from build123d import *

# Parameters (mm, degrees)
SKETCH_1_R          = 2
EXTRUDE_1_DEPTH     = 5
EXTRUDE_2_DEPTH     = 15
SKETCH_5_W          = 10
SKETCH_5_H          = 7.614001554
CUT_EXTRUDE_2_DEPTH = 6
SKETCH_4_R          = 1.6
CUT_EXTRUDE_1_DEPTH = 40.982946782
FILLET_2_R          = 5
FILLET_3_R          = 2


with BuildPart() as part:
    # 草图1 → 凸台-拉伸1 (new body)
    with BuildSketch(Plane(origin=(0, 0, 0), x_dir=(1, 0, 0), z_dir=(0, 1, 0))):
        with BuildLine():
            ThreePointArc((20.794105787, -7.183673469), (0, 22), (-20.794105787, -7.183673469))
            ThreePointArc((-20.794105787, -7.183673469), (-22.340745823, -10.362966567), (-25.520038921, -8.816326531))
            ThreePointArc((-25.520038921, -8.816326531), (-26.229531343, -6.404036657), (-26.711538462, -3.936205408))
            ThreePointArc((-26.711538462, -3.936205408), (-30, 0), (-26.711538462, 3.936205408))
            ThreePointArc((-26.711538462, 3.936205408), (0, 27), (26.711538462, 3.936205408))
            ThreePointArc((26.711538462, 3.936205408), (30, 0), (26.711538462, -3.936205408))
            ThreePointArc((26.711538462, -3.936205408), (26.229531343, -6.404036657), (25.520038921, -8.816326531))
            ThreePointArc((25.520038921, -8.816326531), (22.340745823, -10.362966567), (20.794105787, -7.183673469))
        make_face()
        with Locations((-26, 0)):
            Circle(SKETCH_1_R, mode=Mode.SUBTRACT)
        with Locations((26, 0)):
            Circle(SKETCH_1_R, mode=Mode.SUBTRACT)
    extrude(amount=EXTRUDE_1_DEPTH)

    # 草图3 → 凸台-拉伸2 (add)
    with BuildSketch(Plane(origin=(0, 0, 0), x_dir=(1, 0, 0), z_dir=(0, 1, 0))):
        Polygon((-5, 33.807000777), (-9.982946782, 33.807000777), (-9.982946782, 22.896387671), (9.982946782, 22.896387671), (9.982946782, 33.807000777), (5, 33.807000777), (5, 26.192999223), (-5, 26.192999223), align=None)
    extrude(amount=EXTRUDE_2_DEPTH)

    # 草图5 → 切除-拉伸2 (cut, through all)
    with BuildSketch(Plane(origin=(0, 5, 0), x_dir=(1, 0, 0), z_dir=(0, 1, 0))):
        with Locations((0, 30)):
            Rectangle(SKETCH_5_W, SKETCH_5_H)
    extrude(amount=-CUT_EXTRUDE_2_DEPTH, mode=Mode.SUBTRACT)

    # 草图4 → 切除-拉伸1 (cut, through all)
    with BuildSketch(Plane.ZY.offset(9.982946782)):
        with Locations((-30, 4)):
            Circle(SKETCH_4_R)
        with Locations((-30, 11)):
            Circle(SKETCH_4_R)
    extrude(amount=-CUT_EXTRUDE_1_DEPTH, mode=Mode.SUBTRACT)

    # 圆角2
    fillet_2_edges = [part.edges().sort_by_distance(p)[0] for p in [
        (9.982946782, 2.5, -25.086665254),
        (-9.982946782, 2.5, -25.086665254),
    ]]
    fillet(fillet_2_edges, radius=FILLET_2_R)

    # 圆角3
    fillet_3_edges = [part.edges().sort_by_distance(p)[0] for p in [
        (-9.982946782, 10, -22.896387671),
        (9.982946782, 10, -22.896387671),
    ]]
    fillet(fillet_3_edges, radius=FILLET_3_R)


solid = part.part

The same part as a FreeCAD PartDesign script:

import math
import FreeCAD as App
import Part
import Sketcher
Q = App.Units.Quantity


def edges_at(feature, points):
    """Names of the edges that pass closest to the given points."""
    edges = feature.Shape.Edges
    near = lambda p: min(range(len(edges)), key=lambda i: edges[i].distToShape(Part.Vertex(*p))[0])
    return sorted({f"Edge{near(p) + 1}" for p in points})


def add_polygon(sketch, points):
    """Adds a closed chain of lines whose ends are joined by coincident constraints."""
    first, n = sketch.GeometryCount, len(points)
    for a, b in zip(points, points[1:] + points[:1]):
        sketch.addGeometry(Part.LineSegment(App.Vector(*a, 0), App.Vector(*b, 0)), False)
    for i in range(n):
        sketch.addConstraint(Sketcher.Constraint("Coincident", first + i, 2, first + (i + 1) % n, 1))

doc = App.newDocument("Part")
body = doc.addObject("PartDesign::Body", "Body")

sketch1 = body.newObject("Sketcher::SketchObject", "Sketch")
sketch1.AttachmentSupport = (doc.getObject("XZ_Plane"), [""])
sketch1.MapMode = "FlatFace"
sketch1.addGeometry(Part.ArcOfCircle(Part.Circle(App.Vector(0, 0, 0), App.Vector(0, 0, 1), 22), math.radians(161), math.radians(379)), False)
sketch1.addGeometry(Part.ArcOfCircle(Part.Circle(App.Vector(23.2, 8, 0), App.Vector(0, 0, 1), 2.5), math.radians(19), math.radians(199)), False)
sketch1.addGeometry(Part.ArcOfCircle(Part.Circle(App.Vector(0, 0, 0), App.Vector(0, 0, 1), 27), math.radians(8.38), math.radians(19.06)), False)
sketch1.addGeometry(Part.ArcOfCircle(Part.Circle(App.Vector(26, 0, 0), App.Vector(0, 0, 1), 4), math.radians(-80), math.radians(80)), False)
sketch1.addGeometry(Part.ArcOfCircle(Part.Circle(App.Vector(0, 0, 0), App.Vector(0, 0, 1), 27), math.radians(-172), math.radians(-8)), False)
sketch1.addGeometry(Part.ArcOfCircle(Part.Circle(App.Vector(-26, 0, 0), App.Vector(0, 0, 1), 4), math.radians(100), math.radians(260)), False)
sketch1.addGeometry(Part.ArcOfCircle(Part.Circle(App.Vector(0, 0, 0), App.Vector(0, 0, 1), 27), math.radians(160.94), math.radians(171.62)), False)
sketch1.addGeometry(Part.ArcOfCircle(Part.Circle(App.Vector(-23.2, 8, 0), App.Vector(0, 0, 1), 2.5), math.radians(-19), math.radians(161)), False)
sketch1.addGeometry(Part.Circle(App.Vector(26, 0, 0), App.Vector(0, 0, 1), 2), False)
sketch1.addGeometry(Part.Circle(App.Vector(-26, 0, 0), App.Vector(0, 0, 1), 2), False)
sketch1.addConstraint(Sketcher.Constraint("Tangent", 0, 2, 1, 2))
sketch1.addConstraint(Sketcher.Constraint("Tangent", 1, 1, 2, 2))
sketch1.addConstraint(Sketcher.Constraint("Coincident", 2, 1, 3, 2))
sketch1.addConstraint(Sketcher.Constraint("Coincident", 3, 1, 4, 2))
sketch1.addConstraint(Sketcher.Constraint("Coincident", 4, 1, 5, 2))
sketch1.addConstraint(Sketcher.Constraint("Coincident", 5, 1, 6, 2))
sketch1.addConstraint(Sketcher.Constraint("Tangent", 6, 1, 7, 2))
sketch1.addConstraint(Sketcher.Constraint("Tangent", 7, 1, 0, 1))
sketch1.addConstraint(Sketcher.Constraint("Coincident", 0, 3, -1, 1))
sketch1.addConstraint(Sketcher.Constraint("Coincident", 2, 3, -1, 1))
sketch1.addConstraint(Sketcher.Constraint("Coincident", 4, 3, -1, 1))
sketch1.addConstraint(Sketcher.Constraint("Coincident", 6, 3, -1, 1))
sketch1.addConstraint(Sketcher.Constraint("Coincident", 8, 3, 3, 3))
sketch1.addConstraint(Sketcher.Constraint("Coincident", 9, 3, 5, 3))
sketch1.addConstraint(Sketcher.Constraint("Equal", 2, 4))
sketch1.addConstraint(Sketcher.Constraint("Equal", 3, 5))
sketch1.addConstraint(Sketcher.Constraint("Equal", 4, 6))
sketch1.addConstraint(Sketcher.Constraint("Equal", 8, 9))
sketch1.addConstraint(Sketcher.Constraint("Symmetric", 3, 3, 5, 3, -1, 1))
sketch1.addConstraint(Sketcher.Constraint("PointOnObject", 3, 3, -1))
sketch1.addConstraint(Sketcher.Constraint("Horizontal", 1, 3, 7, 3))
sketch1.addConstraint(Sketcher.Constraint("Diameter", 8, Q("4 mm")))
sketch1.addConstraint(Sketcher.Constraint("Radius", 0, Q("22 mm")))
sketch1.addConstraint(Sketcher.Constraint("Radius", 2, Q("27 mm")))
sketch1.addConstraint(Sketcher.Constraint("Radius", 3, Q("4 mm")))
sketch1.addConstraint(Sketcher.Constraint("DistanceY", -1, 1, 1, 3, Q("8 mm")))
sketch1.addConstraint(Sketcher.Constraint("DistanceX", -1, 1, 3, 3, Q("26 mm")))
pad1 = body.newObject("PartDesign::Pad", "Pad")
pad1.Profile = sketch1
pad1.Length = 5
pad1.Reversed = True

sketch2 = body.newObject("Sketcher::SketchObject", "Sketch001")
sketch2.AttachmentSupport = (doc.getObject("XZ_Plane"), [""])
sketch2.MapMode = "FlatFace"
add_polygon(sketch2, [(-5, -33.8), (-10, -33.8), (-10, -22.9), (10, -22.9), (10, -33.8), (5, -33.8), (5, -26.2), (-5, -26.2)])
sketch2.addConstraint(Sketcher.Constraint("Horizontal", 0))
sketch2.addConstraint(Sketcher.Constraint("Vertical", 1))
sketch2.addConstraint(Sketcher.Constraint("Horizontal", 2))
sketch2.addConstraint(Sketcher.Constraint("Vertical", 3))
sketch2.addConstraint(Sketcher.Constraint("Horizontal", 4))
sketch2.addConstraint(Sketcher.Constraint("Vertical", 5))
sketch2.addConstraint(Sketcher.Constraint("Horizontal", 6))
sketch2.addConstraint(Sketcher.Constraint("Vertical", 7))
sketch2.addConstraint(Sketcher.Constraint("Symmetric", 0, 2, 3, 2, -2))
sketch2.addConstraint(Sketcher.Constraint("Equal", 0, 4))
sketch2.addConstraint(Sketcher.Constraint("DistanceX", 6, 2, 6, 1, Q("10 mm")))
sketch2.addConstraint(Sketcher.Constraint("DistanceY", 5, 1, 5, 2, Q("7.614002 mm")))
sketch2.addConstraint(Sketcher.Constraint("DistanceY", 0, 2, -1, 1, Q("33.807001 mm")))
sketch2.addConstraint(Sketcher.Constraint("DistanceX", 0, 2, 0, 1, Q("4.982947 mm")))
sketch2.addConstraint(Sketcher.Constraint("DistanceY", 1, 1, 1, 2, Q("10.910613 mm")))
pad2 = body.newObject("PartDesign::Pad", "Pad001")
pad2.Profile = sketch2
pad2.Length = 15
pad2.Reversed = True

sketch3 = body.newObject("Sketcher::SketchObject", "Sketch002")
sketch3.AttachmentSupport = (doc.getObject("XZ_Plane"), [""])
sketch3.MapMode = "FlatFace"
sketch3.AttachmentOffset = App.Placement(App.Vector(0, 0, -5), App.Rotation())
add_polygon(sketch3, [(-5, -34), (-5, -26), (5, -26), (5, -34)])
sketch3.addConstraint(Sketcher.Constraint("Vertical", 0))
sketch3.addConstraint(Sketcher.Constraint("Horizontal", 1))
sketch3.addConstraint(Sketcher.Constraint("Vertical", 2))
sketch3.addConstraint(Sketcher.Constraint("Horizontal", 3))
sketch3.addConstraint(Sketcher.Constraint("DistanceX", 1, 1, 1, 2, Q("10 mm")))
sketch3.addConstraint(Sketcher.Constraint("DistanceX", 0, 2, -1, 1, Q("5 mm")))
sketch3.addConstraint(Sketcher.Constraint("DistanceY", 0, 1, 0, 2, Q("7.614002 mm")))
sketch3.addConstraint(Sketcher.Constraint("DistanceY", 0, 2, -1, 1, Q("26.192999 mm")))
pocket1 = body.newObject("PartDesign::Pocket", "Pocket")
pocket1.Profile = sketch3
pocket1.Type = "ThroughAll"
pocket1.Reversed = True

sketch4 = body.newObject("Sketcher::SketchObject", "Sketch003")
sketch4.AttachmentSupport = (doc.getObject("YZ_Plane"), [""])
sketch4.MapMode = "FlatFace"
sketch4.AttachmentOffset = App.Placement(App.Vector(0, 0, -9.982947), App.Rotation())
sketch4.addGeometry(Part.Circle(App.Vector(4, -30, 0), App.Vector(0, 0, 1), 1.6), False)
sketch4.addGeometry(Part.Circle(App.Vector(11, -30, 0), App.Vector(0, 0, 1), 1.6), False)
sketch4.addConstraint(Sketcher.Constraint("Equal", 0, 1))
sketch4.addConstraint(Sketcher.Constraint("Horizontal", 0, 3, 1, 3))
sketch4.addConstraint(Sketcher.Constraint("Diameter", 0, Q("3.2 mm")))
sketch4.addConstraint(Sketcher.Constraint("DistanceX", -1, 1, 0, 3, Q("4 mm")))
sketch4.addConstraint(Sketcher.Constraint("DistanceY", 0, 3, -1, 1, Q("30 mm")))
sketch4.addConstraint(Sketcher.Constraint("DistanceX", -1, 1, 1, 3, Q("11 mm")))
pocket2 = body.newObject("PartDesign::Pocket", "Pocket001")
pocket2.Profile = sketch4
pocket2.Type = "ThroughAll"
pocket2.Reversed = True
doc.recompute()

fillet = body.newObject("PartDesign::Fillet", "Fillet")
fillet.Base = (pocket2, edges_at(pocket2, [(9.983, 2.5, -25.087), (-9.983, 2.5, -25.087)]))
fillet.Radius = 5
doc.recompute()

fillet2 = body.newObject("PartDesign::Fillet", "Fillet001")
fillet2.Base = (fillet, edges_at(fillet, [(-9.983, 10, -22.896), (9.983, 10, -22.896)]))
fillet2.Radius = 2

doc.recompute()
